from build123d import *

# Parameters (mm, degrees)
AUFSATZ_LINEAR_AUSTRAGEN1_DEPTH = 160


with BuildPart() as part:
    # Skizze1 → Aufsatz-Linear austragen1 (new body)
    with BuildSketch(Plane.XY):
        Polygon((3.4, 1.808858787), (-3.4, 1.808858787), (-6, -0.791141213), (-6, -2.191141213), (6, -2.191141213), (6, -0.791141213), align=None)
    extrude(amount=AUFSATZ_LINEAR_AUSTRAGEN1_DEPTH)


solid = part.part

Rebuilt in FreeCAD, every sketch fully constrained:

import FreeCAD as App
import Part
import Sketcher

V = App.Vector

doc = App.newDocument("Part")
body = doc.addObject("PartDesign::Body", "Body")

sketch1 = doc.addObject("Sketcher::SketchObject", "Sketch")
body.addObject(sketch1)
sketch1.AttachmentSupport = (doc.XY_Plane, [""])
sketch1.MapMode = "FlatFace"
sketch1.addGeometry([
    Part.LineSegment(V(3.4, 1.808859, 0), V(-3.4, 1.808859, 0)),
    Part.LineSegment(V(-3.4, 1.808859, 0), V(-6, -0.791141, 0)),
    Part.LineSegment(V(-6, -0.791141, 0), V(-6, -2.191141, 0)),
    Part.LineSegment(V(-6, -2.191141, 0), V(6, -2.191141, 0)),
    Part.LineSegment(V(6, -2.191141, 0), V(6, -0.791141, 0)),
    Part.LineSegment(V(6, -0.791141, 0), V(3.4, 1.808859, 0)),
], False)
sketch1.addConstraint([
    Sketcher.Constraint("Coincident", 0, 2, 1, 1),
    Sketcher.Constraint("Coincident", 1, 2, 2, 1),
    Sketcher.Constraint("Coincident", 2, 2, 3, 1),
    Sketcher.Constraint("Coincident", 3, 2, 4, 1),
    Sketcher.Constraint("Coincident", 4, 2, 5, 1),
    Sketcher.Constraint("Coincident", 5, 2, 0, 1),
    Sketcher.Constraint("Horizontal", 0),
    Sketcher.Constraint("Vertical", 2),
    Sketcher.Constraint("Horizontal", 3),
    Sketcher.Constraint("Vertical", 4),
    Sketcher.Constraint("Symmetric", 1, 2, 4, 2, -2),
    Sketcher.Constraint("Perpendicular", 1, 5),
    Sketcher.Constraint("Equal", 1, 5),
    Sketcher.Constraint("DistanceX", 3, 1, 3, 2, 12.0),
    Sketcher.Constraint("DistanceX", 0, 2, 0, 1, 6.8),
    Sketcher.Constraint("DistanceY", 2, 2, 2, 1, 1.4),
    Sketcher.Constraint("DistanceY", -1, 1, 0, 2, 1.808859),
])
pad1 = doc.addObject("PartDesign::Pad", "Pad")
body.addObject(pad1)
pad1.Profile = sketch1
pad1.Length = 160

doc.recompute()
